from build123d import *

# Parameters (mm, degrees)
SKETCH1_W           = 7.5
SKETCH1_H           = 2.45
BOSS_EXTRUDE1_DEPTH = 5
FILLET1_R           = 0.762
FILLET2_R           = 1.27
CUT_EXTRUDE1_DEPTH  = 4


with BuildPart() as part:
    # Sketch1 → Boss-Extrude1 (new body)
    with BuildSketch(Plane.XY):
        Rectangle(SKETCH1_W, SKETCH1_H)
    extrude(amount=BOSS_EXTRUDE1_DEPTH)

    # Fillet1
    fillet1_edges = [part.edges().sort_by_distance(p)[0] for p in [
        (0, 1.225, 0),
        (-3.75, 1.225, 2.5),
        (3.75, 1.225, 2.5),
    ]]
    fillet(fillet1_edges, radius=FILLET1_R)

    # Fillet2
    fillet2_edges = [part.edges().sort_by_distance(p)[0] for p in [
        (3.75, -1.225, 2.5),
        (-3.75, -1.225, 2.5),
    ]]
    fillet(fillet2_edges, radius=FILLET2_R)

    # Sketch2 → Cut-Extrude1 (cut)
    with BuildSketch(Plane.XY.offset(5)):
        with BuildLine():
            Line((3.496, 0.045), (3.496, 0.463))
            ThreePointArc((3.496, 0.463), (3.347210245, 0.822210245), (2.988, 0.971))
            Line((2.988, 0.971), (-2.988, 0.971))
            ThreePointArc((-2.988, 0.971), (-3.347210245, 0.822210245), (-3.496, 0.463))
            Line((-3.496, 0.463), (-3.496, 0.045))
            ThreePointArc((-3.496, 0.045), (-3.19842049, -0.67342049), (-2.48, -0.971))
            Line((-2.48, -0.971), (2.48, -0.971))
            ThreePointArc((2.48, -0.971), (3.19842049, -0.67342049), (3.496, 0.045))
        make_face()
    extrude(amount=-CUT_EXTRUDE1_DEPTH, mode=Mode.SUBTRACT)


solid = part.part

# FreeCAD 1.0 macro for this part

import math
import FreeCAD as App
import Part
import Sketcher
from FreeCAD import Vector
Q = App.Units.Quantity


def edges_at(feature, points):
    """Names of the edges that pass closest to the given points."""
    edges = feature.Shape.Edges
    near = lambda p: min(range(len(edges)), key=lambda i: edges[i].distToShape(Part.Vertex(*p))[0])
    return sorted({f"Edge{near(p) + 1}" for p in points})


def add_polygon(sketch, points):
    """Adds a closed chain of lines whose ends are joined by coincident constraints."""
    first, n = sketch.GeometryCount, len(points)
    for a, b in zip(points, points[1:] + points[:1]):
        sketch.addGeometry(Part.LineSegment(App.Vector(*a, 0), App.Vector(*b, 0)), False)
    for i in range(n):
        sketch.addConstraint(Sketcher.Constraint("Coincident", first + i, 2, first + (i + 1) % n, 1))

doc = App.newDocument("Part")
params = doc.addObject("Spreadsheet::Sheet", "Params")
for row, (alias, value) in enumerate([
    ("pad1_length", "5 mm"),
    ("fillet_radius", "0.03 in"),
    ("fillet2_radius", "0.05 in"),
    ("sketch2_radius", "0.02 in"),
    ("sketch2_radius2", "0.04 in"),
    ("pocket1_length", "4 mm"),
], start=1):
    params.set(f"A{row}", alias)
    params.set(f"B{row}", "=" + value)
    params.setAlias(f"B{row}", alias)

body = doc.addObject("PartDesign::Body", "Body")

# Sketch on XY plane
sketch1 = body.newObject("Sketcher::SketchObject", "Sketch")
sketch1.AttachmentSupport = (doc.getObject("XY_Plane"), [""])
sketch1.MapMode = "FlatFace"
add_polygon(sketch1, [(-3.75, 1.225), (-3.75, -1.225), (3.75, -1.225), (3.75, 1.225)])  # lines 0-3
sketch1.addConstraint([
    Sketcher.Constraint("Vertical", 0),
    Sketcher.Constraint("Horizontal", 1),
    Sketcher.Constraint("Vertical", 2),
    Sketcher.Constraint("Horizontal", 3),
    Sketcher.Constraint("Symmetric", 0, 2, 2, 2, -1, 1),
    Sketcher.Constraint("DistanceX", 1, 1, 1, 2, Q("7.5 mm")),
    Sketcher.Constraint("DistanceY", 0, 2, 0, 1, Q("2.45 mm")),
])
pad1 = body.newObject("PartDesign::Pad", "Pad")
pad1.Profile = sketch1
pad1.setExpression("Length", "Params.pad1_length")
doc.recompute()

fillet = body.newObject("PartDesign::Fillet", "Fillet")
fillet.Base = (pad1, edges_at(pad1, [(0, 1.225, 0), (-3.75, 1.225, 2.5), (3.75, 1.225, 2.5)]))
fillet.setExpression("Radius", "Params.fillet_radius")
doc.recompute()

fillet2 = body.newObject("PartDesign::Fillet", "Fillet001")
fillet2.Base = (fillet, edges_at(fillet, [(3.75, -1.225, 2.5), (-3.75, -1.225, 2.5)]))
fillet2.setExpression("Radius", "Params.fillet2_radius")

# Sketch on XY plane
sketch2 = body.newObject("Sketcher::SketchObject", "Sketch001")
sketch2.AttachmentSupport = (doc.getObject("XY_Plane"), [""])
sketch2.MapMode = "FlatFace"
sketch2.AttachmentOffset = App.Placement(Vector(0, 0, 5), App.Rotation())
sketch2.addGeometry([
    Part.LineSegment(Vector(3.496, 0.045, 0), Vector(3.496, 0.463, 0)),  # 0
    Part.ArcOfCircle(Part.Circle(Vector(2.988, 0.463, 0), Vector(0, 0, 1), 0.508), math.radians(0), math.radians(90)),  # 1
    Part.LineSegment(Vector(2.988, 0.971, 0), Vector(-2.988, 0.971, 0)),  # 2
    Part.ArcOfCircle(Part.Circle(Vector(-2.988, 0.463, 0), Vector(0, 0, 1), 0.508), math.radians(90), math.radians(180)),  # 3
    Part.LineSegment(Vector(-3.496, 0.463, 0), Vector(-3.496, 0.045, 0)),  # 4
    Part.ArcOfCircle(Part.Circle(Vector(-2.48, 0.045, 0), Vector(0, 0, 1), 1.016), math.radians(180), math.radians(270)),  # 5
    Part.LineSegment(Vector(-2.48, -0.971, 0), Vector(2.48, -0.971, 0)),  # 6
    Part.ArcOfCircle(Part.Circle(Vector(2.48, 0.045, 0), Vector(0, 0, 1), 1.016), math.radians(-90), math.radians(0)),  # 7
], False)
sketch2.addConstraint([
    Sketcher.Constraint("Tangent", 0, 2, 1, 1),
    Sketcher.Constraint("Tangent", 1, 2, 2, 1),
    Sketcher.Constraint("Tangent", 2, 2, 3, 1),
    Sketcher.Constraint("Tangent", 3, 2, 4, 1),
    Sketcher.Constraint("Tangent", 4, 2, 5, 1),
    Sketcher.Constraint("Tangent", 5, 2, 6, 1),
    Sketcher.Constraint("Tangent", 6, 2, 7, 1),
    Sketcher.Constraint("Tangent", 7, 2, 0, 1),
    Sketcher.Constraint("Vertical", 0),
    Sketcher.Constraint("Horizontal", 2),
    Sketcher.Constraint("Vertical", 4),
    Sketcher.Constraint("Horizontal", 6),
    Sketcher.Constraint("Equal", 1, 3),
    Sketcher.Constraint("Equal", 5, 7),
    Sketcher.Constraint("Radius", 1, Q("0.02 in")),
    Sketcher.Constraint("Radius", 5, Q("0.04 in")),
    Sketcher.Constraint("DistanceX", 2, 2, 2, 1, Q("5.976 mm")),
    Sketcher.Constraint("DistanceY", 0, 1, 0, 2, Q("0.418 mm")),
    Sketcher.Constraint("DistanceX", -1, 1, 1, 3, Q("2.988 mm")),
    Sketcher.Constraint("DistanceY", -1, 1, 1, 3, Q("0.463 mm")),
])
sketch2.setExpression("Constraints[14]", "Params.sketch2_radius")
sketch2.setExpression("Constraints[15]", "Params.sketch2_radius2")
pocket1 = body.newObject("PartDesign::Pocket", "Pocket")
pocket1.Profile = sketch2
pocket1.setExpression("Length", "Params.pocket1_length")

doc.recompute()
